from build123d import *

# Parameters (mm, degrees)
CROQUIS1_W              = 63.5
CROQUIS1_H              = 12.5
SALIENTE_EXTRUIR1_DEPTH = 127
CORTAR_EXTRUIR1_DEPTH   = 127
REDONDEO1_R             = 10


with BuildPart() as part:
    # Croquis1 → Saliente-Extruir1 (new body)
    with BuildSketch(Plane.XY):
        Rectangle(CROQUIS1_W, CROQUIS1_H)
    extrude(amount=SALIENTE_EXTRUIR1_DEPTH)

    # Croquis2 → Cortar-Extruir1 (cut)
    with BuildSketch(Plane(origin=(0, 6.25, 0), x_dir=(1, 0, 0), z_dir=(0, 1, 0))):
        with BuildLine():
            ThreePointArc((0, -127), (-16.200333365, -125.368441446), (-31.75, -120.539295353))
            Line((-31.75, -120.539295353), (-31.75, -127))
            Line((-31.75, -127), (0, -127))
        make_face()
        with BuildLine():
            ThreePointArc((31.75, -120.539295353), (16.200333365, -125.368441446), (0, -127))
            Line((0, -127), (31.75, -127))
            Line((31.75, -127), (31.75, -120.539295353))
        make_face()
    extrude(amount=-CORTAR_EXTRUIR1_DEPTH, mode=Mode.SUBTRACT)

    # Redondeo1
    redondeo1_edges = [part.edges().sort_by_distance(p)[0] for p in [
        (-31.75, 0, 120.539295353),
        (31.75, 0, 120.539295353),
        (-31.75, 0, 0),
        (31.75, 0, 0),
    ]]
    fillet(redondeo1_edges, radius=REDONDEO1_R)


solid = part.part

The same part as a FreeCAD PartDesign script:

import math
import FreeCAD as App
import Part
import Sketcher
Q = App.Units.Quantity


def edges_at(feature, points):
    """Names of the edges that pass closest to the given points."""
    edges = feature.Shape.Edges
    near = lambda p: min(range(len(edges)), key=lambda i: edges[i].distToShape(Part.Vertex(*p))[0])
    return sorted({f"Edge{near(p) + 1}" for p in points})

doc = App.newDocument("Part")
body = doc.addObject("PartDesign::Body", "Body")

sketch1 = doc.addObject("Sketcher::SketchObject", "Sketch")
body.addObject(sketch1)
sketch1.AttachmentSupport = (doc.XY_Plane, [""])
sketch1.MapMode = "FlatFace"
sketch1.addGeometry([
    Part.LineSegment(App.Vector(-32, 6, 0), App.Vector(-32, -6, 0)),
    Part.LineSegment(App.Vector(-32, -6, 0), App.Vector(32, -6, 0)),
    Part.LineSegment(App.Vector(32, -6, 0), App.Vector(32, 6, 0)),
    Part.LineSegment(App.Vector(32, 6, 0), App.Vector(-32, 6, 0)),
], False)
sketch1.addConstraint([
    Sketcher.Constraint("Coincident", 0, 2, 1, 1),
    Sketcher.Constraint("Coincident", 1, 2, 2, 1),
    Sketcher.Constraint("Coincident", 2, 2, 3, 1),
    Sketcher.Constraint("Coincident", 3, 2, 0, 1),
    Sketcher.Constraint("Vertical", 0),
    Sketcher.Constraint("Horizontal", 1),
    Sketcher.Constraint("Vertical", 2),
    Sketcher.Constraint("Horizontal", 3),
    Sketcher.Constraint("Symmetric", 0, 2, 2, 2, -1, 1),
    Sketcher.Constraint("DistanceX", 1, 1, 1, 2, Q("2.5 in")),
    Sketcher.Constraint("DistanceY", 0, 2, 0, 1, 12.5),
])
pad1 = doc.addObject("PartDesign::Pad", "Pad")
body.addObject(pad1)
pad1.Profile = sketch1
pad1.Length = Q("5 in")

sketch2 = doc.addObject("Sketcher::SketchObject", "Sketch001")
body.addObject(sketch2)
sketch2.AttachmentSupport = (doc.XZ_Plane, [""])
sketch2.MapMode = "FlatFace"
sketch2.AttachmentOffset = App.Placement(App.Vector(0, 0, -6.25), App.Rotation())
sketch2.addGeometry([
    Part.ArcOfCircle(Part.Circle(App.Vector(0, 46, 0), App.Vector(0, 0, 1), 81), math.radians(90), math.radians(113)),
    Part.LineSegment(App.Vector(-32, 121, 0), App.Vector(-32, 127, 0)),
    Part.LineSegment(App.Vector(-32, 127, 0), App.Vector(0, 127, 0)),
    Part.ArcOfCircle(Part.Circle(App.Vector(0, 46, 0), App.Vector(0, 0, 1), 81), math.radians(67), math.radians(90)),
    Part.LineSegment(App.Vector(0, 127, 0), App.Vector(32, 127, 0)),
    Part.LineSegment(App.Vector(32, 127, 0), App.Vector(32, 121, 0)),
], False)
sketch2.addConstraint([
    Sketcher.Constraint("Coincident", 0, 2, 1, 1),
    Sketcher.Constraint("Coincident", 1, 2, 2, 1),
    Sketcher.Constraint("Tangent", 2, 2, 0, 1),
    Sketcher.Constraint("Tangent", 3, 2, 4, 1),
    Sketcher.Constraint("Coincident", 4, 2, 5, 1),
    Sketcher.Constraint("Coincident", 5, 2, 3, 1),
    Sketcher.Constraint("Vertical", 1),
    Sketcher.Constraint("Horizontal", 2),
    Sketcher.Constraint("Horizontal", 4),
    Sketcher.Constraint("Vertical", 5),
    Sketcher.Constraint("Coincident", 3, 3, 0, 3),
    Sketcher.Constraint("Equal", 0, 3),
    Sketcher.Constraint("Symmetric", 0, 2, 5, 2, -2),
    Sketcher.Constraint("DistanceY", -1, 1, 1, 2, Q("5 in")),
    Sketcher.Constraint("DistanceX", 2, 1, 2, 2, Q("1.25 in")),
    Sketcher.Constraint("Radius", 0, 81.245256),
])
pocket1 = doc.addObject("PartDesign::Pocket", "Pocket")
body.addObject(pocket1)
pocket1.Profile = sketch2
pocket1.Length = Q("5 in")
pocket1.Reversed = True
doc.recompute()

fillet = doc.addObject("PartDesign::Fillet", "Fillet")
body.addObject(fillet)
fillet.Base = (pocket1, edges_at(pocket1, [
    (-31.75, 0, 120.539),
    (31.75, 0, 120.539),
    (-31.75, 0, 0),
    (31.75, 0, 0),
]))
fillet.Radius = 10

doc.recompute()
